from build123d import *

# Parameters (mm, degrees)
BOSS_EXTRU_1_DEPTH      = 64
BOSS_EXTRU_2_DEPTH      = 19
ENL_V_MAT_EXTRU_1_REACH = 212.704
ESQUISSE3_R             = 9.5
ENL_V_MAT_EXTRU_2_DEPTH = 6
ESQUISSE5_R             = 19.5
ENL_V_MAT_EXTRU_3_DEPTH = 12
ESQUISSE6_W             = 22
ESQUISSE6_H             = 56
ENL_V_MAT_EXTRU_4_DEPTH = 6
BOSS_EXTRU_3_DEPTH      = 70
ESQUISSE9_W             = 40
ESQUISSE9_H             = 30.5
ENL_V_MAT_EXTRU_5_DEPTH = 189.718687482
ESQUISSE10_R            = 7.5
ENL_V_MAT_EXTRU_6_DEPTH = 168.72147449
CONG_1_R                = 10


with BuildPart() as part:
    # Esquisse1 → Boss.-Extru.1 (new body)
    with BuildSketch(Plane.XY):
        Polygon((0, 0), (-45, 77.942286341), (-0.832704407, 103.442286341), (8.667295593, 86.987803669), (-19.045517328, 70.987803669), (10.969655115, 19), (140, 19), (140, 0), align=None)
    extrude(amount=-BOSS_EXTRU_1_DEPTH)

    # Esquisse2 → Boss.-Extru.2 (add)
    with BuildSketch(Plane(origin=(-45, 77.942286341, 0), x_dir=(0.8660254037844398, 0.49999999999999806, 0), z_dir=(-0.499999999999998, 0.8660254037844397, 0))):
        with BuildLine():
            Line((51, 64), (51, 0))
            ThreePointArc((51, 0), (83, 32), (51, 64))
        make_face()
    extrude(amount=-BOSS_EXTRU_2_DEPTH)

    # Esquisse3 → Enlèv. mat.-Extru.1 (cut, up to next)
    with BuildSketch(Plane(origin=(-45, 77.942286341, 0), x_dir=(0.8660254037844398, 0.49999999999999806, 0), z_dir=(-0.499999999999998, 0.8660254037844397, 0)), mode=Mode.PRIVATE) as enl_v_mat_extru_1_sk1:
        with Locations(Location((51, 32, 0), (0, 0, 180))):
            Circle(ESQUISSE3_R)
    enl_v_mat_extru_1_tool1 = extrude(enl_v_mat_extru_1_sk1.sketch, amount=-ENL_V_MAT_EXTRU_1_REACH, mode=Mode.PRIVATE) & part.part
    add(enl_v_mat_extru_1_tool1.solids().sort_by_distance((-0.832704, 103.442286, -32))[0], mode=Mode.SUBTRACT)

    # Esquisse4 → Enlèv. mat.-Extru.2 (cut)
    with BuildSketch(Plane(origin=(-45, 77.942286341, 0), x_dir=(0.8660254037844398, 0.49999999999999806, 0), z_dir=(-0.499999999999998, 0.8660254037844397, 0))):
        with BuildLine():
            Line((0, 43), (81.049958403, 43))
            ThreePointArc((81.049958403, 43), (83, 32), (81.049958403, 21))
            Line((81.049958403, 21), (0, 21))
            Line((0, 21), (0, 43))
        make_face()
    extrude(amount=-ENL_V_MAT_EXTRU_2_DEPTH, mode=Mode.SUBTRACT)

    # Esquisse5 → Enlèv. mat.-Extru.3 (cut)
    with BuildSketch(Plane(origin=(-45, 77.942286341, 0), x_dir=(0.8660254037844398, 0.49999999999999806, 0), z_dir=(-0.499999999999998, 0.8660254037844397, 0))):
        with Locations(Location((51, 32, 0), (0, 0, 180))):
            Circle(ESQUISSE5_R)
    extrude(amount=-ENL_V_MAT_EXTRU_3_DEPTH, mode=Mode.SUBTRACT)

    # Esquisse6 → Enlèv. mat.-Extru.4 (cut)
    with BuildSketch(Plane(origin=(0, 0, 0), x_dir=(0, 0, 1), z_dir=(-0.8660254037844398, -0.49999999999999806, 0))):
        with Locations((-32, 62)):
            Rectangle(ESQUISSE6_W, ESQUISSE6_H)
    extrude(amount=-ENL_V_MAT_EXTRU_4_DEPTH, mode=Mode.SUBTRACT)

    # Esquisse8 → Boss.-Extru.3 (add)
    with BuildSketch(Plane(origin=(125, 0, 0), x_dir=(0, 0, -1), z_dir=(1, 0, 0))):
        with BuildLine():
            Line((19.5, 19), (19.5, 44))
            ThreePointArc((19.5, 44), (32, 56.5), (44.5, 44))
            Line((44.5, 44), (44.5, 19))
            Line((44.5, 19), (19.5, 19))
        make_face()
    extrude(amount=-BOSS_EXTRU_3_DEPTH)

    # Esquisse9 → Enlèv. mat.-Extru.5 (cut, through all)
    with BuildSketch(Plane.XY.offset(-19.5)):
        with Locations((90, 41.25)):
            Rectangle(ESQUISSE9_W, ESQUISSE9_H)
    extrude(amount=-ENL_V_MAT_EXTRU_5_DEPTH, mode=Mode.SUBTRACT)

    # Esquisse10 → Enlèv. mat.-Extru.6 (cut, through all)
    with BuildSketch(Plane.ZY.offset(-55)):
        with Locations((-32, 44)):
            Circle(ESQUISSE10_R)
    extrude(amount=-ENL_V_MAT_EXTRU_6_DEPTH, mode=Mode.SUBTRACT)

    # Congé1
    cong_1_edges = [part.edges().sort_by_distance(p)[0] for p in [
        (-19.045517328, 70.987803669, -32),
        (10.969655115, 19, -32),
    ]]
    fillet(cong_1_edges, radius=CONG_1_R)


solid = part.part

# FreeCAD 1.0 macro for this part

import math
import FreeCAD as App
import Part
import Sketcher
Q = App.Units.Quantity


def edges_at(feature, points):
    """Names of the edges that pass closest to the given points."""
    edges = feature.Shape.Edges
    near = lambda p: min(range(len(edges)), key=lambda i: edges[i].distToShape(Part.Vertex(*p))[0])
    return sorted({f"Edge{near(p) + 1}" for p in points})

doc = App.newDocument("Part")
params = doc.addObject("Spreadsheet::Sheet", "Params")
for row, (alias, value) in enumerate([
    ("sketch1_width", "140 mm"),
    ("sketch1_height", "19 mm"),
    ("sketch1_length", "90 mm"),
    ("sketch1_length2", "32 mm"),
    ("sketch1_length3", "19 mm"),
    ("pad1_length", "64 mm"),
    ("sketch2_radius", "32 mm"),
    ("pad2_length", "19 mm"),
    ("sketch3_diameter", "19 mm"),
    ("sketch4_radius", "32 mm"),
    ("sketch4_height", "22 mm"),
    ("pocket2_length", "6 mm"),
    ("sketch5_diameter", "39 mm"),
    ("pocket3_length", "12 mm"),
    ("sketch6_width", "22 mm"),
    ("sketch6_height", "56 mm"),
    ("pocket4_length", "6 mm"),
    ("sketch7_radius", "12.5 mm"),
    ("pad3_length", "70 mm"),
    ("sketch8_width", "40 mm"),
    ("sketch8_height", "30.5 mm"),
    ("sketch9_diameter", "15 mm"),
    ("fillet_radius", "10 mm"),
], start=1):
    params.set(f"A{row}", alias)
    params.set(f"B{row}", "=" + value)
    params.setAlias(f"B{row}", alias)

body = doc.addObject("PartDesign::Body", "Body")

sketch1 = body.newObject("Sketcher::SketchObject", "Sketch")
sketch1.AttachmentSupport = (doc.getObject("XY_Plane"), [""])
sketch1.MapMode = "FlatFace"
sketch1.addGeometry([
    Part.LineSegment(App.Vector(-45, 78, 0), App.Vector(0, 0, 0)),
    Part.LineSegment(App.Vector(0, 0, 0), App.Vector(140, 0, 0)),
    Part.LineSegment(App.Vector(140, 0, 0), App.Vector(140, 19, 0)),
    Part.LineSegment(App.Vector(140, 19, 0), App.Vector(11, 19, 0)),
    Part.LineSegment(App.Vector(11, 19, 0), App.Vector(-19, 71, 0)),
    Part.LineSegment(App.Vector(-19, 71, 0), App.Vector(9, 87, 0)),
    Part.LineSegment(App.Vector(9, 87, 0), App.Vector(-1, 103, 0)),
    Part.LineSegment(App.Vector(-1, 103, 0), App.Vector(-45, 78, 0)),
], False)
sketch1.addConstraint([
    Sketcher.Constraint("Coincident", 0, 2, 1, 1),
    Sketcher.Constraint("Coincident", 1, 2, 2, 1),
    Sketcher.Constraint("Coincident", 2, 2, 3, 1),
    Sketcher.Constraint("Coincident", 3, 2, 4, 1),
    Sketcher.Constraint("Coincident", 4, 2, 5, 1),
    Sketcher.Constraint("Coincident", 5, 2, 6, 1),
    Sketcher.Constraint("Coincident", 6, 2, 7, 1),
    Sketcher.Constraint("Coincident", 7, 2, 0, 1),
    Sketcher.Constraint("Horizontal", 1),
    Sketcher.Constraint("Vertical", 2),
    Sketcher.Constraint("Horizontal", 3),
    Sketcher.Constraint("Coincident", 0, 2, -1, 1),
    Sketcher.Constraint("Parallel", 0, 4),
    Sketcher.Constraint("Perpendicular", 4, 5),
    Sketcher.Constraint("Perpendicular", 5, 6),
    Sketcher.Constraint("Perpendicular", 6, 7),
    Sketcher.Constraint("DistanceX", 1, 1, 1, 2, 140.0),
    Sketcher.Constraint("DistanceY", 2, 1, 2, 2, 19.0),
    Sketcher.Constraint("Angle", 0, Q("-60 deg")),
    Sketcher.Constraint("Distance", 0, 90.0),
    Sketcher.Constraint("Distance", 5, 32.0),
    Sketcher.Constraint("Distance", 6, 19.0),
    Sketcher.Constraint("Distance", 7, 51.0),
])
sketch1.setExpression("Constraints[16]", "Params.sketch1_width")
sketch1.setExpression("Constraints[17]", "Params.sketch1_height")
sketch1.setExpression("Constraints[19]", "Params.sketch1_length")
sketch1.setExpression("Constraints[20]", "Params.sketch1_length2")
sketch1.setExpression("Constraints[21]", "Params.sketch1_length3")
pad1 = body.newObject("PartDesign::Pad", "Pad")
pad1.Profile = sketch1
pad1.setExpression("Length", "Params.pad1_length")
pad1.Reversed = True

sketch2 = body.newObject("Sketcher::SketchObject", "Sketch001")
sketch2.Placement = App.Placement(App.Vector(-45, 77.942286, 0), App.Rotation(App.Vector(0.866025404, 0.5, 0), App.Vector(0, 0, -1), App.Vector(-0.5, 0.866025404, 0), "ZXY"))
sketch2.addGeometry([
    Part.LineSegment(App.Vector(51, 64, 0), App.Vector(51, 0, 0)),
    Part.ArcOfCircle(Part.Circle(App.Vector(51, 32, 0), App.Vector(0, 0, 1), 32), math.radians(-90), math.radians(90)),
], False)
sketch2.addConstraint([
    Sketcher.Constraint("Coincident", 0, 1, 1, 2),
    Sketcher.Constraint("Coincident", 1, 1, 0, 2),
    Sketcher.Constraint("Vertical", 0),
    Sketcher.Constraint("PointOnObject", 1, 1, -1),
    Sketcher.Constraint("Vertical", 1, 3, 0, 1),
    Sketcher.Constraint("Radius", 1, 32.0),
    Sketcher.Constraint("DistanceX", -1, 1, 1, 3, 51.0),
])
sketch2.setExpression("Constraints[5]", "Params.sketch2_radius")
pad2 = body.newObject("PartDesign::Pad", "Pad001")
pad2.Profile = sketch2
pad2.setExpression("Length", "Params.pad2_length")
pad2.Reversed = True

sketch3 = body.newObject("Sketcher::SketchObject", "Sketch002")
sketch3.Placement = App.Placement(App.Vector(-45, 77.942286, 0), App.Rotation(App.Vector(0.866025404, 0.5, 0), App.Vector(0, 0, -1), App.Vector(-0.5, 0.866025404, 0), "ZXY"))
sketch3.addGeometry(Part.Circle(App.Vector(51, 32, 0), App.Vector(0, 0, 1), 10), False)
sketch3.addConstraint([
    Sketcher.Constraint("Diameter", 0, 19.0),
    Sketcher.Constraint("DistanceX", -1, 1, 0, 3, 51.0),
    Sketcher.Constraint("DistanceY", -1, 1, 0, 3, 32.0),
])
sketch3.setExpression("Constraints[0]", "Params.sketch3_diameter")
pocket1 = body.newObject("PartDesign::Pocket", "Pocket")
pocket1.Profile = sketch3
pocket1.Type = "UpToFirst"

sketch4 = body.newObject("Sketcher::SketchObject", "Sketch003")
sketch4.Placement = App.Placement(App.Vector(-45, 77.942286, 0), App.Rotation(App.Vector(0.866025404, 0.5, 0), App.Vector(0, 0, -1), App.Vector(-0.5, 0.866025404, 0), "ZXY"))
sketch4.addGeometry([
    Part.LineSegment(App.Vector(81, 43, 0), App.Vector(0, 43, 0)),
    Part.LineSegment(App.Vector(0, 43, 0), App.Vector(0, 21, 0)),
    Part.LineSegment(App.Vector(0, 21, 0), App.Vector(81, 21, 0)),
    Part.ArcOfCircle(Part.Circle(App.Vector(51, 32, 0), App.Vector(0, 0, 1), 32), math.radians(-20), math.radians(20)),
], False)
sketch4.addConstraint([
    Sketcher.Constraint("Coincident", 0, 2, 1, 1),
    Sketcher.Constraint("Coincident", 1, 2, 2, 1),
    Sketcher.Constraint("Coincident", 2, 2, 3, 1),
    Sketcher.Constraint("Coincident", 3, 2, 0, 1),
    Sketcher.Constraint("Horizontal", 0),
    Sketcher.Constraint("Vertical", 1),
    Sketcher.Constraint("Horizontal", 2),
    Sketcher.Constraint("PointOnObject", 0, 2, -2),
    Sketcher.Constraint("Vertical", 2, 2, 3, 2),
    Sketcher.Constraint("Radius", 3, 32.0),
    Sketcher.Constraint("DistanceY", 1, 2, 1, 1, 22.0),
    Sketcher.Constraint("DistanceX", -1, 1, 3, 3, 51.0),
    Sketcher.Constraint("DistanceY", -1, 1, 3, 3, 32.0),
])
sketch4.setExpression("Constraints[9]", "Params.sketch4_radius")
sketch4.setExpression("Constraints[10]", "Params.sketch4_height")
pocket2 = body.newObject("PartDesign::Pocket", "Pocket001")
pocket2.Profile = sketch4
pocket2.setExpression("Length", "Params.pocket2_length")

sketch5 = body.newObject("Sketcher::SketchObject", "Sketch004")
sketch5.Placement = App.Placement(App.Vector(-45, 77.942286, 0), App.Rotation(App.Vector(0.866025404, 0.5, 0), App.Vector(0, 0, -1), App.Vector(-0.5, 0.866025404, 0), "ZXY"))
sketch5.addGeometry(Part.Circle(App.Vector(51, 32, 0), App.Vector(0, 0, 1), 20), False)
sketch5.addConstraint([
    Sketcher.Constraint("Diameter", 0, 39.0),
    Sketcher.Constraint("DistanceX", -1, 1, 0, 3, 51.0),
    Sketcher.Constraint("DistanceY", -1, 1, 0, 3, 32.0),
])
sketch5.setExpression("Constraints[0]", "Params.sketch5_diameter")
pocket3 = body.newObject("PartDesign::Pocket", "Pocket002")
pocket3.Profile = sketch5
pocket3.setExpression("Length", "Params.pocket3_length")

sketch6 = body.newObject("Sketcher::SketchObject", "Sketch005")
sketch6.Placement = App.Placement(App.Vector(0, 0, 0), App.Rotation(App.Vector(0, 0, 1), App.Vector(-0.5, 0.866025404, 0), App.Vector(-0.866025404, -0.5, 0), "ZXY"))
sketch6.addGeometry([
    Part.LineSegment(App.Vector(-43, 90, 0), App.Vector(-43, 34, 0)),
    Part.LineSegment(App.Vector(-43, 34, 0), App.Vector(-21, 34, 0)),
    Part.LineSegment(App.Vector(-21, 34, 0), App.Vector(-21, 90, 0)),
    Part.LineSegment(App.Vector(-21, 90, 0), App.Vector(-43, 90, 0)),
], False)
sketch6.addConstraint([
    Sketcher.Constraint("Coincident", 0, 2, 1, 1),
    Sketcher.Constraint("Coincident", 1, 2, 2, 1),
    Sketcher.Constraint("Coincident", 2, 2, 3, 1),
    Sketcher.Constraint("Coincident", 3, 2, 0, 1),
    Sketcher.Constraint("Vertical", 0),
    Sketcher.Constraint("Horizontal", 1),
    Sketcher.Constraint("Vertical", 2),
    Sketcher.Constraint("Horizontal", 3),
    Sketcher.Constraint("DistanceX", 1, 1, 1, 2, 22.0),
    Sketcher.Constraint("DistanceY", 0, 2, 0, 1, 56.0),
    Sketcher.Constraint("DistanceX", 0, 2, -1, 1, 43.0),
    Sketcher.Constraint("DistanceY", -1, 1, 0, 2, 34.0),
])
sketch6.setExpression("Constraints[8]", "Params.sketch6_width")
sketch6.setExpression("Constraints[9]", "Params.sketch6_height")
pocket4 = body.newObject("PartDesign::Pocket", "Pocket003")
pocket4.Profile = sketch6
pocket4.setExpression("Length", "Params.pocket4_length")

sketch7 = body.newObject("Sketcher::SketchObject", "Sketch006")
sketch7.AttachmentSupport = (doc.getObject("YZ_Plane"), [""])
sketch7.MapMode = "FlatFace"
sketch7.AttachmentOffset = App.Placement(App.Vector(0, 0, 125), App.Rotation())
sketch7.addGeometry([
    Part.LineSegment(App.Vector(44, -20, 0), App.Vector(19, -20, 0)),
    Part.LineSegment(App.Vector(19, -20, 0), App.Vector(19, -44, 0)),
    Part.LineSegment(App.Vector(19, -44, 0), App.Vector(44, -44, 0)),
    Part.ArcOfCircle(Part.Circle(App.Vector(44, -32, 0), App.Vector(0, 0, 1), 12), math.radians(-90), math.radians(90)),
], False)
sketch7.addConstraint([
    Sketcher.Constraint("Coincident", 0, 2, 1, 1),
    Sketcher.Constraint("Coincident", 1, 2, 2, 1),
    Sketcher.Constraint("Tangent", 2, 2, 3, 1),
    Sketcher.Constraint("Tangent", 3, 2, 0, 1),
    Sketcher.Constraint("Horizontal", 0),
    Sketcher.Constraint("Vertical", 1),
    Sketcher.Constraint("Horizontal", 2),
    Sketcher.Constraint("Equal", 2, 1),
    Sketcher.Constraint("Radius", 3, 12.5),
    Sketcher.Constraint("DistanceX", -1, 1, 3, 3, 44.0),
    Sketcher.Constraint("DistanceY", 3, 3, -1, 1, 32.0),
])
sketch7.setExpression("Constraints[8]", "Params.sketch7_radius")
pad3 = body.newObject("PartDesign::Pad", "Pad002")
pad3.Profile = sketch7
pad3.setExpression("Length", "Params.pad3_length")
pad3.Reversed = True

sketch8 = body.newObject("Sketcher::SketchObject", "Sketch007")
sketch8.AttachmentSupport = (doc.getObject("XY_Plane"), [""])
sketch8.MapMode = "FlatFace"
sketch8.AttachmentOffset = App.Placement(App.Vector(0, 0, -19.5), App.Rotation())
sketch8.addGeometry([
    Part.LineSegment(App.Vector(70, 56, 0), App.Vector(70, 26, 0)),
    Part.LineSegment(App.Vector(70, 26, 0), App.Vector(110, 26, 0)),
    Part.LineSegment(App.Vector(110, 26, 0), App.Vector(110, 56, 0)),
    Part.LineSegment(App.Vector(110, 56, 0), App.Vector(70, 56, 0)),
], False)
sketch8.addConstraint([
    Sketcher.Constraint("Coincident", 0, 2, 1, 1),
    Sketcher.Constraint("Coincident", 1, 2, 2, 1),
    Sketcher.Constraint("Coincident", 2, 2, 3, 1),
    Sketcher.Constraint("Coincident", 3, 2, 0, 1),
    Sketcher.Constraint("Vertical", 0),
    Sketcher.Constraint("Horizontal", 1),
    Sketcher.Constraint("Vertical", 2),
    Sketcher.Constraint("Horizontal", 3),
    Sketcher.Constraint("DistanceX", 1, 1, 1, 2, 40.0),
    Sketcher.Constraint("DistanceY", 0, 2, 0, 1, 30.5),
    Sketcher.Constraint("DistanceX", -1, 1, 0, 2, 70.0),
    Sketcher.Constraint("DistanceY", -1, 1, 0, 2, 26.0),
])
sketch8.setExpression("Constraints[8]", "Params.sketch8_width")
sketch8.setExpression("Constraints[9]", "Params.sketch8_height")
pocket5 = body.newObject("PartDesign::Pocket", "Pocket004")
pocket5.Profile = sketch8
pocket5.Type = "ThroughAll"

sketch9 = body.newObject("Sketcher::SketchObject", "Sketch008")
sketch9.AttachmentSupport = (doc.getObject("YZ_Plane"), [""])
sketch9.MapMode = "FlatFace"
sketch9.AttachmentOffset = App.Placement(App.Vector(0, 0, 55), App.Rotation())
sketch9.addGeometry(Part.Circle(App.Vector(44, -32, 0), App.Vector(0, 0, 1), 8), False)
sketch9.addConstraint([
    Sketcher.Constraint("Diameter", 0, 15.0),
    Sketcher.Constraint("DistanceX", -1, 1, 0, 3, 44.0),
    Sketcher.Constraint("DistanceY", 0, 3, -1, 1, 32.0),
])
sketch9.setExpression("Constraints[0]", "Params.sketch9_diameter")
pocket6 = body.newObject("PartDesign::Pocket", "Pocket005")
pocket6.Profile = sketch9
pocket6.Type = "ThroughAll"
pocket6.Reversed = True
doc.recompute()

fillet = body.newObject("PartDesign::Fillet", "Fillet")
fillet.Base = (pocket6, edges_at(pocket6, [(-19.046, 70.988, -32), (10.97, 19, -32)]))
fillet.setExpression("Radius", "Params.fillet_radius")

doc.recompute()
